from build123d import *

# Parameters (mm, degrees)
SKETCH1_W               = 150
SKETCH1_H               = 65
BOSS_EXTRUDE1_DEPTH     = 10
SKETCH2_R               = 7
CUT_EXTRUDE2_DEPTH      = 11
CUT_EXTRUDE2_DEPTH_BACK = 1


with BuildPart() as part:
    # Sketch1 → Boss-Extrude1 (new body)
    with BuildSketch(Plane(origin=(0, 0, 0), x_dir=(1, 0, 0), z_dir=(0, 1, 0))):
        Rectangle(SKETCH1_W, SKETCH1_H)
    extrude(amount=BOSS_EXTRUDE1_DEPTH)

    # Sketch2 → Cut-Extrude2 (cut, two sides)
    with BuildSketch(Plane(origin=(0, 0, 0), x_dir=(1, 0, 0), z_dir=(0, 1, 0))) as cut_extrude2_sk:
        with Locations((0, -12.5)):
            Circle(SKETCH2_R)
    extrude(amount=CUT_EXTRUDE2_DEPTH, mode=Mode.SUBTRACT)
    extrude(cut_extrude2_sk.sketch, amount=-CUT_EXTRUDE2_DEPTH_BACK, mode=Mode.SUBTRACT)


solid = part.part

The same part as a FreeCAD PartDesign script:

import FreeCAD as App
import Part
import Sketcher
from FreeCAD import Vector
Q = App.Units.Quantity

doc = App.newDocument("Part")
body = doc.addObject("PartDesign::Body", "Body")

# Sketch on XZ plane
sketch1 = body.newObject("Sketcher::SketchObject", "Sketch")
sketch1.AttachmentSupport = (doc.getObject("XZ_Plane"), [""])
sketch1.MapMode = "FlatFace"
sketch1.addGeometry([
    Part.LineSegment(Vector(-75, -32.5, 0), Vector(-75, 32.5, 0)),
    Part.LineSegment(Vector(-75, 32.5, 0), Vector(75, 32.5, 0)),
    Part.LineSegment(Vector(75, 32.5, 0), Vector(75, -32.5, 0)),
    Part.LineSegment(Vector(75, -32.5, 0), Vector(-75, -32.5, 0)),
], False)
sketch1.addConstraint([
    Sketcher.Constraint("Coincident", 0, 2, 1, 1),
    Sketcher.Constraint("Coincident", 1, 2, 2, 1),
    Sketcher.Constraint("Coincident", 2, 2, 3, 1),
    Sketcher.Constraint("Coincident", 3, 2, 0, 1),
    Sketcher.Constraint("Vertical", 0),
    Sketcher.Constraint("Horizontal", 1),
    Sketcher.Constraint("Vertical", 2),
    Sketcher.Constraint("Horizontal", 3),
    Sketcher.Constraint("Symmetric", 0, 2, 2, 2, -1, 1),
    Sketcher.Constraint("DistanceX", 1, 1, 1, 2, Q("150 mm")),
    Sketcher.Constraint("DistanceY", 0, 1, 0, 2, Q("65 mm")),
])
pad1 = body.newObject("PartDesign::Pad", "Pad")
pad1.Profile = sketch1
pad1.Length = 10
pad1.Reversed = True

# Sketch on XZ plane
sketch2 = body.newObject("Sketcher::SketchObject", "Sketch001")
sketch2.AttachmentSupport = (doc.getObject("XZ_Plane"), [""])
sketch2.MapMode = "FlatFace"
sketch2.addGeometry(Part.Circle(Vector(0, 12.5, 0), Vector(0, 0, 1), 7), False)
sketch2.addConstraint([
    Sketcher.Constraint("PointOnObject", 0, 3, -2),
    Sketcher.Constraint("Diameter", 0, Q("14 mm")),
    Sketcher.Constraint("DistanceY", -1, 1, 0, 3, Q("12.5 mm")),
])
pocket1 = body.newObject("PartDesign::Pocket", "Pocket")
pocket1.Profile = sketch2
pocket1.Type = "ThroughAll"
pocket1.Midplane = True

doc.recompute()
